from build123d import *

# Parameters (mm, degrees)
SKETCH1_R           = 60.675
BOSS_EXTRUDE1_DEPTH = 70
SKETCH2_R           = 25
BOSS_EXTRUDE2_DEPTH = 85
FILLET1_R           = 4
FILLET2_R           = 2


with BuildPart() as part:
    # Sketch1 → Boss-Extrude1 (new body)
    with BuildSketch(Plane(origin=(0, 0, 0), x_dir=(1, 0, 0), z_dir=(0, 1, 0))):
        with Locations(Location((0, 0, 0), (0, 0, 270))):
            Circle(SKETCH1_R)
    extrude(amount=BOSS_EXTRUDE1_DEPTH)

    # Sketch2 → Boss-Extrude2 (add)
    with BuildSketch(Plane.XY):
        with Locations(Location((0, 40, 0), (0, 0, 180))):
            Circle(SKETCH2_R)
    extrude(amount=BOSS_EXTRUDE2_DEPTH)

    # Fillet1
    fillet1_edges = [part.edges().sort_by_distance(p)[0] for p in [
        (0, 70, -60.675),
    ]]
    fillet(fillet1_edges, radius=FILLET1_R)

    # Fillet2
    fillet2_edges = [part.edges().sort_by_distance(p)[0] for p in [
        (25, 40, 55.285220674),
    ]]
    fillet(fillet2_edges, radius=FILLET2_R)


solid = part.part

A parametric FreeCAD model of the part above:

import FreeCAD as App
import Part
import Sketcher
Q = App.Units.Quantity


def edges_at(feature, points):
    """Names of the edges that pass closest to the given points."""
    edges = feature.Shape.Edges
    near = lambda p: min(range(len(edges)), key=lambda i: edges[i].distToShape(Part.Vertex(*p))[0])
    return sorted({f"Edge{near(p) + 1}" for p in points})

doc = App.newDocument("Part")
params = doc.addObject("Spreadsheet::Sheet", "Params")
for row, (alias, value) in enumerate([
    ("sketch1_diameter", "121.35 mm"),
    ("pad1_length", "70 mm"),
    ("sketch2_diameter", "50 mm"),
    ("pad2_length", "85 mm"),
    ("fillet_radius", "4 mm"),
    ("fillet2_radius", "2 mm"),
], start=1):
    params.set(f"A{row}", alias)
    params.set(f"B{row}", "=" + value)
    params.setAlias(f"B{row}", alias)

body = doc.addObject("PartDesign::Body", "Body")

# Sketch on XZ plane
sketch1 = body.newObject("Sketcher::SketchObject", "Sketch")
sketch1.AttachmentSupport = (doc.getObject("XZ_Plane"), [""])
sketch1.MapMode = "FlatFace"
sketch1.addGeometry(Part.Circle(App.Vector(0, 0, 0), App.Vector(0, 0, 1), 61), False)
sketch1.addConstraint(Sketcher.Constraint("Coincident", 0, 3, -1, 1))
sketch1.addConstraint(Sketcher.Constraint("Diameter", 0, Q("121.35 mm")))
sketch1.setExpression("Constraints[1]", "Params.sketch1_diameter")
pad1 = body.newObject("PartDesign::Pad", "Pad")
pad1.Profile = sketch1
pad1.setExpression("Length", "Params.pad1_length")
pad1.Reversed = True

# Sketch on XY plane
sketch2 = body.newObject("Sketcher::SketchObject", "Sketch001")
sketch2.AttachmentSupport = (doc.getObject("XY_Plane"), [""])
sketch2.MapMode = "FlatFace"
sketch2.addGeometry(Part.Circle(App.Vector(0, 40, 0), App.Vector(0, 0, 1), 25), False)
sketch2.addConstraint(Sketcher.Constraint("PointOnObject", 0, 3, -2))
sketch2.addConstraint(Sketcher.Constraint("Diameter", 0, Q("50 mm")))
sketch2.addConstraint(Sketcher.Constraint("DistanceY", -1, 1, 0, 3, Q("40 mm")))
sketch2.setExpression("Constraints[1]", "Params.sketch2_diameter")
pad2 = body.newObject("PartDesign::Pad", "Pad001")
pad2.Profile = sketch2
pad2.setExpression("Length", "Params.pad2_length")
doc.recompute()

fillet = body.newObject("PartDesign::Fillet", "Fillet")
fillet.Base = (pad2, edges_at(pad2, [(0, 70, -60.675)]))
fillet.setExpression("Radius", "Params.fillet_radius")
doc.recompute()

fillet2 = body.newObject("PartDesign::Fillet", "Fillet001")
fillet2.Base = (fillet, edges_at(fillet, [(25, 40, 55.285)]))
fillet2.setExpression("Radius", "Params.fillet2_radius")

doc.recompute()
